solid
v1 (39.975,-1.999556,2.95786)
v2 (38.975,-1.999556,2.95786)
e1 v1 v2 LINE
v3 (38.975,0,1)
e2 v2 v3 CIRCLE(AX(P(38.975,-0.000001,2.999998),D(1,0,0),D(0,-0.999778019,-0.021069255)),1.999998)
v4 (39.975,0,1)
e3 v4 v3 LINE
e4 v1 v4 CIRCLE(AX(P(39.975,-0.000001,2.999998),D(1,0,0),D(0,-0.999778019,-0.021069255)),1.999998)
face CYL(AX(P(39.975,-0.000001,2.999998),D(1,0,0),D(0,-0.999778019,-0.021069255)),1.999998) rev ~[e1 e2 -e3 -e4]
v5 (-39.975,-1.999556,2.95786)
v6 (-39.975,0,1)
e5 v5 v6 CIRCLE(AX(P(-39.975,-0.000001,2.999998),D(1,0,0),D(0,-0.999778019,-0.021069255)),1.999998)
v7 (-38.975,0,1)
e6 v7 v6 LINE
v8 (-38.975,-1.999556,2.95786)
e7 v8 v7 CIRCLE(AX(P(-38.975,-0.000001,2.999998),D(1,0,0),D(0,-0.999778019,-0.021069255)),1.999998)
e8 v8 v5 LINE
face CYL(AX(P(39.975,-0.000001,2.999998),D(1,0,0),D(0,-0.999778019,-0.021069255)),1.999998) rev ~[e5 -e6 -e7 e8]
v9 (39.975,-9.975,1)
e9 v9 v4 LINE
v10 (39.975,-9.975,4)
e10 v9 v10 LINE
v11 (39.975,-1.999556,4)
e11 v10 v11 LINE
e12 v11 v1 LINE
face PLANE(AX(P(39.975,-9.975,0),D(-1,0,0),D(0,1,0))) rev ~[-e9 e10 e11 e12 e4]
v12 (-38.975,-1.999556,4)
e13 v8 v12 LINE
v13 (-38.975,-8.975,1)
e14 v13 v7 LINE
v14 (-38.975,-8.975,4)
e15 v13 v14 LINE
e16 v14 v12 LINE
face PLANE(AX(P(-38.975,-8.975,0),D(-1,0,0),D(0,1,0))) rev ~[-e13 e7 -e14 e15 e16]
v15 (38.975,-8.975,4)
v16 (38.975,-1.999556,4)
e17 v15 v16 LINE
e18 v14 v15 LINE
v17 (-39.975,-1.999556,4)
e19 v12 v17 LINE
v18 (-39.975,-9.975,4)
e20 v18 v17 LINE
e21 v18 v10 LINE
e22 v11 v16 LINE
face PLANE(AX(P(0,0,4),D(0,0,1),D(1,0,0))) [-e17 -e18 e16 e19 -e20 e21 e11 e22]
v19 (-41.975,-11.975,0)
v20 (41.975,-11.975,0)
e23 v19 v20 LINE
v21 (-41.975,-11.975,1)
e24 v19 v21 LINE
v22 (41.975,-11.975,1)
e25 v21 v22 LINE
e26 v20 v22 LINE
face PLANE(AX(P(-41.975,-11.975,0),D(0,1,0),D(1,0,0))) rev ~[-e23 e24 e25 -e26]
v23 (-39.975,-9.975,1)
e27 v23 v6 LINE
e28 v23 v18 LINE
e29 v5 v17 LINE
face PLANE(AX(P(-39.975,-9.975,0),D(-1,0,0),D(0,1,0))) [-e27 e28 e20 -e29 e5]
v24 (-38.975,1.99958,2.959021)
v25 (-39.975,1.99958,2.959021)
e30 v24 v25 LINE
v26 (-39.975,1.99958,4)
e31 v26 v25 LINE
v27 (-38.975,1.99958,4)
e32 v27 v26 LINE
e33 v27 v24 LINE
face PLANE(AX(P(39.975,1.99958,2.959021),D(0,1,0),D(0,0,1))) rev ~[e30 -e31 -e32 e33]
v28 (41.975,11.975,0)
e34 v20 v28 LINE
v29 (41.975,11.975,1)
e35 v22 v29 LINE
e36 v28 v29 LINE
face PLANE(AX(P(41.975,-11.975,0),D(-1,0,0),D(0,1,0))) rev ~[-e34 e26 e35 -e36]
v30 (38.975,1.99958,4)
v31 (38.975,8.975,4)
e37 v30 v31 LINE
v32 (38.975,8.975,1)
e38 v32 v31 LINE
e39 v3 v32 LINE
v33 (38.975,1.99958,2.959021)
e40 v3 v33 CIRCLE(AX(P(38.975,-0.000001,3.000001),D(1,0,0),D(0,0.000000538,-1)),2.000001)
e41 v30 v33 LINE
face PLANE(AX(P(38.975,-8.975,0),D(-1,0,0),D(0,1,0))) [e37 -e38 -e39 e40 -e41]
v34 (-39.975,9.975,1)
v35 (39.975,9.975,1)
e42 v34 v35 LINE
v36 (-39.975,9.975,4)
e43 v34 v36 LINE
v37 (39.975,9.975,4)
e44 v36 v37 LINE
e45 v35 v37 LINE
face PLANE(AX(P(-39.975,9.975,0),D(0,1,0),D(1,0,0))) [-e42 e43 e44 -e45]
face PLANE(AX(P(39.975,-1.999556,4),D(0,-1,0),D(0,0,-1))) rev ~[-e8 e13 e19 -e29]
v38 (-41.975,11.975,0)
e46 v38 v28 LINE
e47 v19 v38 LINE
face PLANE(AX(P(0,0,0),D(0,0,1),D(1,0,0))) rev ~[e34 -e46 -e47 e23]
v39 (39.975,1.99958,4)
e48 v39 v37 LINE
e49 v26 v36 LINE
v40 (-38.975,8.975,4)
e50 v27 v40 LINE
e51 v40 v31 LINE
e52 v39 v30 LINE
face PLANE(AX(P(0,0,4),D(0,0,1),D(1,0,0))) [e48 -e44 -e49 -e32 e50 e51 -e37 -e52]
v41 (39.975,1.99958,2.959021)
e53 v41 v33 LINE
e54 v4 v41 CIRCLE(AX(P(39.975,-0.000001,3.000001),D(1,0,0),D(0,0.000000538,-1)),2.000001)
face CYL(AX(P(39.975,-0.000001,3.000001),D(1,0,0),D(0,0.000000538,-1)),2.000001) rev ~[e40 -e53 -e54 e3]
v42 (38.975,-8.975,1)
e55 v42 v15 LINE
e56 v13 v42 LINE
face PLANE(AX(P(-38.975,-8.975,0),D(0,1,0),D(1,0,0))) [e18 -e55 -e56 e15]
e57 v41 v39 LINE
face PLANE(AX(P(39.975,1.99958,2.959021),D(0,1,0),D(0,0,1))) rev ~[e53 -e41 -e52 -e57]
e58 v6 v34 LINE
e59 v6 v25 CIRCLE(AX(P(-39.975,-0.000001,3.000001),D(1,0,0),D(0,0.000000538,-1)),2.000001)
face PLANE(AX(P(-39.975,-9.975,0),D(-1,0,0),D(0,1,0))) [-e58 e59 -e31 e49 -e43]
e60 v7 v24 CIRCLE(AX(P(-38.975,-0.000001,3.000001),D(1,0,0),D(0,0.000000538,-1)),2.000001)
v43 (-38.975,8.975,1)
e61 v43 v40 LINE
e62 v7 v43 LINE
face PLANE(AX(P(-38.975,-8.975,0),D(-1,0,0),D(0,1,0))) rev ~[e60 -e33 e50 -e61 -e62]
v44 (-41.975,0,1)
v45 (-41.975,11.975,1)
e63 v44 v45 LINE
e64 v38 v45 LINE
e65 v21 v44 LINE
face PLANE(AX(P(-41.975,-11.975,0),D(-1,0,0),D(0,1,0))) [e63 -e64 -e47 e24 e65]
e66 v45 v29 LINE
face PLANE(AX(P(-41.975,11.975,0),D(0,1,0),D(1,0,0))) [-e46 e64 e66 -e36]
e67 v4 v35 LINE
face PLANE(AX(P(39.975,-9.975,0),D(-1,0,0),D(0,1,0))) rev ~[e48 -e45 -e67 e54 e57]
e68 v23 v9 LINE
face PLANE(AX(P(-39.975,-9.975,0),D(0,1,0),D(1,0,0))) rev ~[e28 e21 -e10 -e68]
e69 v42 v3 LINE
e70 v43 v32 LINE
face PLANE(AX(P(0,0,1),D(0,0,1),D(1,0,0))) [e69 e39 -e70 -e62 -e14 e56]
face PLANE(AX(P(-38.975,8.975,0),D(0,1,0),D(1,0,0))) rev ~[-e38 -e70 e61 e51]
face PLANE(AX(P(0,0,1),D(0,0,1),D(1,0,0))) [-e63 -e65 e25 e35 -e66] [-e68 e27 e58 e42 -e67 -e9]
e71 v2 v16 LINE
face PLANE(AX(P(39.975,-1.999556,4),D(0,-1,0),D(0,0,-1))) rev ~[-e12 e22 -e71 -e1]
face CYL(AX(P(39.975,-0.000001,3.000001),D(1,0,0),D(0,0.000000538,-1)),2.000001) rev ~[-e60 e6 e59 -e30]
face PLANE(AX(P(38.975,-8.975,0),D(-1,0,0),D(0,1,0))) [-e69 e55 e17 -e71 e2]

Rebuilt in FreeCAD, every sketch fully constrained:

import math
import FreeCAD as App
import Part
import Sketcher

V = App.Vector


def add_polygon(sketch, points):
    """Adds a closed chain of lines whose ends are joined by coincident constraints."""
    first, n = sketch.GeometryCount, len(points)
    for a, b in zip(points, points[1:] + points[:1]):
        sketch.addGeometry(Part.LineSegment(App.Vector(*a, 0), App.Vector(*b, 0)), False)
    for i in range(n):
        sketch.addConstraint(Sketcher.Constraint("Coincident", first + i, 2, first + (i + 1) % n, 1))

doc = App.newDocument("Part")
body = doc.addObject("PartDesign::Body", "Body")

# Sketch on XY plane
sketch1 = body.newObject("Sketcher::SketchObject", "Sketch")
sketch1.AttachmentSupport = (doc.getObject("XY_Plane"), [""])
sketch1.MapMode = "FlatFace"
add_polygon(sketch1, [(-39.975, 9.975), (-39.975, -9.975), (39.975, -9.975), (39.975, 9.975)])  # lines 0-3
add_polygon(sketch1, [(38.975, -8.975), (-38.975, -8.975), (-38.975, 8.975), (38.975, 8.975)])  # lines 4-7
sketch1.addConstraint([
    Sketcher.Constraint("Vertical", 0),
    Sketcher.Constraint("Horizontal", 1),
    Sketcher.Constraint("Vertical", 2),
    Sketcher.Constraint("Horizontal", 3),
    Sketcher.Constraint("Horizontal", 4),
    Sketcher.Constraint("Vertical", 5),
    Sketcher.Constraint("Horizontal", 6),
    Sketcher.Constraint("Vertical", 7),
    Sketcher.Constraint("Symmetric", 0, 2, 2, 2, -1, 1),
    Sketcher.Constraint("Symmetric", 4, 2, 6, 2, -1, 1),
    Sketcher.Constraint("DistanceX", 0, 2, 4, 2, 1.0),
    Sketcher.Constraint("DistanceY", 0, 2, 4, 2, 1.0),
    Sketcher.Constraint("DistanceX", 1, 1, 1, 2, 79.95),
    Sketcher.Constraint("DistanceY", 0, 2, 0, 1, 19.95),
])
pad1 = body.newObject("PartDesign::Pad", "Pad")
pad1.Profile = sketch1
pad1.Length = 4

# Sketch on XY plane
sketch2 = body.newObject("Sketcher::SketchObject", "Sketch001")
sketch2.AttachmentSupport = (doc.getObject("XY_Plane"), [""])
sketch2.MapMode = "FlatFace"
add_polygon(sketch2, [(-41.975, 11.975), (-41.975, -11.975), (41.975, -11.975), (41.975, 11.975)])  # lines 0-3
add_polygon(sketch2, [(39.975, -9.975), (-39.975, -9.975), (-39.975, 9.975), (39.975, 9.975)])  # lines 4-7
add_polygon(sketch2, [(-38.975, 8.975), (-38.975, -8.975), (38.975, -8.975), (38.975, 8.975)])  # lines 8-11
sketch2.addConstraint([
    Sketcher.Constraint("Vertical", 0),
    Sketcher.Constraint("Horizontal", 1),
    Sketcher.Constraint("Vertical", 2),
    Sketcher.Constraint("Horizontal", 3),
    Sketcher.Constraint("Horizontal", 4),
    Sketcher.Constraint("Vertical", 5),
    Sketcher.Constraint("Horizontal", 6),
    Sketcher.Constraint("Vertical", 7),
    Sketcher.Constraint("Vertical", 8),
    Sketcher.Constraint("Horizontal", 9),
    Sketcher.Constraint("Vertical", 10),
    Sketcher.Constraint("Horizontal", 11),
    Sketcher.Constraint("Symmetric", 0, 2, 2, 2, -1, 1),
    Sketcher.Constraint("Symmetric", 4, 2, 6, 2, -1, 1),
    Sketcher.Constraint("Symmetric", 8, 2, 10, 2, -1, 1),
    Sketcher.Constraint("DistanceX", 0, 2, 4, 2, 2.0),
    Sketcher.Constraint("DistanceY", 0, 2, 4, 2, 2.0),
    Sketcher.Constraint("DistanceX", 4, 2, 8, 2, 1.0),
    Sketcher.Constraint("DistanceY", 4, 2, 8, 2, 1.0),
    Sketcher.Constraint("DistanceX", 1, 1, 1, 2, 83.95),
    Sketcher.Constraint("DistanceY", 0, 2, 0, 1, 23.95),
])
pad2 = body.newObject("PartDesign::Pad", "Pad001")
pad2.Profile = sketch2
pad2.Length = 1

# Sketch on YZ plane
sketch3 = body.newObject("Sketcher::SketchObject", "Sketch002")
sketch3.AttachmentSupport = (doc.getObject("YZ_Plane"), [""])
sketch3.MapMode = "FlatFace"
sketch3.AttachmentOffset = App.Placement(V(0, 0, 39.975), App.Rotation())
sketch3.addGeometry([
    Part.LineSegment(V(-1.999556, 4, 0), V(-1.999556, 2.95786, 0)),  # 0
    Part.ArcOfCircle(Part.Circle(V(-0.000001, 2.999998, 0), V(0, 0, 1), 1.999998), math.radians(-178.792731), math.radians(-89.999957)),  # 1
    Part.ArcOfCircle(Part.Circle(V(-0.000001, 3.000001, 0), V(0, 0, 1), 2.000001), math.radians(-89.999969), math.radians(-1.174071)),  # 2
    Part.LineSegment(V(1.99958, 2.959021, 0), V(1.99958, 4, 0)),  # 3
    Part.LineSegment(V(1.99958, 4, 0), V(-1.999556, 4, 0)),  # 4
], False)
sketch3.addConstraint([
    Sketcher.Constraint("Coincident", 0, 2, 1, 1),
    Sketcher.Constraint("Tangent", 1, 2, 2, 1),
    Sketcher.Constraint("Coincident", 2, 2, 3, 1),
    Sketcher.Constraint("Coincident", 3, 2, 4, 1),
    Sketcher.Constraint("Coincident", 4, 2, 0, 1),
    Sketcher.Constraint("Vertical", 0),
    Sketcher.Constraint("Vertical", 3),
    Sketcher.Constraint("Horizontal", 4),
    Sketcher.Constraint("PointOnObject", 1, 3, -2),
    Sketcher.Constraint("PointOnObject", 1, 2, -2),
    Sketcher.Constraint("Radius", 1, 1.999998),
    Sketcher.Constraint("Radius", 2, 2.000001),
    Sketcher.Constraint("DistanceY", -1, 1, 1, 3, 2.999998),
    Sketcher.Constraint("DistanceY", -1, 1, 3, 2, 4.0),
    Sketcher.Constraint("DistanceY", 0, 2, 0, 1, 1.04214),
    Sketcher.Constraint("DistanceY", 3, 1, 3, 2, 1.040979),
])
pocket1 = body.newObject("PartDesign::Pocket", "Pocket")
pocket1.Profile = sketch3
pocket1.Length = 100

doc.recompute()
